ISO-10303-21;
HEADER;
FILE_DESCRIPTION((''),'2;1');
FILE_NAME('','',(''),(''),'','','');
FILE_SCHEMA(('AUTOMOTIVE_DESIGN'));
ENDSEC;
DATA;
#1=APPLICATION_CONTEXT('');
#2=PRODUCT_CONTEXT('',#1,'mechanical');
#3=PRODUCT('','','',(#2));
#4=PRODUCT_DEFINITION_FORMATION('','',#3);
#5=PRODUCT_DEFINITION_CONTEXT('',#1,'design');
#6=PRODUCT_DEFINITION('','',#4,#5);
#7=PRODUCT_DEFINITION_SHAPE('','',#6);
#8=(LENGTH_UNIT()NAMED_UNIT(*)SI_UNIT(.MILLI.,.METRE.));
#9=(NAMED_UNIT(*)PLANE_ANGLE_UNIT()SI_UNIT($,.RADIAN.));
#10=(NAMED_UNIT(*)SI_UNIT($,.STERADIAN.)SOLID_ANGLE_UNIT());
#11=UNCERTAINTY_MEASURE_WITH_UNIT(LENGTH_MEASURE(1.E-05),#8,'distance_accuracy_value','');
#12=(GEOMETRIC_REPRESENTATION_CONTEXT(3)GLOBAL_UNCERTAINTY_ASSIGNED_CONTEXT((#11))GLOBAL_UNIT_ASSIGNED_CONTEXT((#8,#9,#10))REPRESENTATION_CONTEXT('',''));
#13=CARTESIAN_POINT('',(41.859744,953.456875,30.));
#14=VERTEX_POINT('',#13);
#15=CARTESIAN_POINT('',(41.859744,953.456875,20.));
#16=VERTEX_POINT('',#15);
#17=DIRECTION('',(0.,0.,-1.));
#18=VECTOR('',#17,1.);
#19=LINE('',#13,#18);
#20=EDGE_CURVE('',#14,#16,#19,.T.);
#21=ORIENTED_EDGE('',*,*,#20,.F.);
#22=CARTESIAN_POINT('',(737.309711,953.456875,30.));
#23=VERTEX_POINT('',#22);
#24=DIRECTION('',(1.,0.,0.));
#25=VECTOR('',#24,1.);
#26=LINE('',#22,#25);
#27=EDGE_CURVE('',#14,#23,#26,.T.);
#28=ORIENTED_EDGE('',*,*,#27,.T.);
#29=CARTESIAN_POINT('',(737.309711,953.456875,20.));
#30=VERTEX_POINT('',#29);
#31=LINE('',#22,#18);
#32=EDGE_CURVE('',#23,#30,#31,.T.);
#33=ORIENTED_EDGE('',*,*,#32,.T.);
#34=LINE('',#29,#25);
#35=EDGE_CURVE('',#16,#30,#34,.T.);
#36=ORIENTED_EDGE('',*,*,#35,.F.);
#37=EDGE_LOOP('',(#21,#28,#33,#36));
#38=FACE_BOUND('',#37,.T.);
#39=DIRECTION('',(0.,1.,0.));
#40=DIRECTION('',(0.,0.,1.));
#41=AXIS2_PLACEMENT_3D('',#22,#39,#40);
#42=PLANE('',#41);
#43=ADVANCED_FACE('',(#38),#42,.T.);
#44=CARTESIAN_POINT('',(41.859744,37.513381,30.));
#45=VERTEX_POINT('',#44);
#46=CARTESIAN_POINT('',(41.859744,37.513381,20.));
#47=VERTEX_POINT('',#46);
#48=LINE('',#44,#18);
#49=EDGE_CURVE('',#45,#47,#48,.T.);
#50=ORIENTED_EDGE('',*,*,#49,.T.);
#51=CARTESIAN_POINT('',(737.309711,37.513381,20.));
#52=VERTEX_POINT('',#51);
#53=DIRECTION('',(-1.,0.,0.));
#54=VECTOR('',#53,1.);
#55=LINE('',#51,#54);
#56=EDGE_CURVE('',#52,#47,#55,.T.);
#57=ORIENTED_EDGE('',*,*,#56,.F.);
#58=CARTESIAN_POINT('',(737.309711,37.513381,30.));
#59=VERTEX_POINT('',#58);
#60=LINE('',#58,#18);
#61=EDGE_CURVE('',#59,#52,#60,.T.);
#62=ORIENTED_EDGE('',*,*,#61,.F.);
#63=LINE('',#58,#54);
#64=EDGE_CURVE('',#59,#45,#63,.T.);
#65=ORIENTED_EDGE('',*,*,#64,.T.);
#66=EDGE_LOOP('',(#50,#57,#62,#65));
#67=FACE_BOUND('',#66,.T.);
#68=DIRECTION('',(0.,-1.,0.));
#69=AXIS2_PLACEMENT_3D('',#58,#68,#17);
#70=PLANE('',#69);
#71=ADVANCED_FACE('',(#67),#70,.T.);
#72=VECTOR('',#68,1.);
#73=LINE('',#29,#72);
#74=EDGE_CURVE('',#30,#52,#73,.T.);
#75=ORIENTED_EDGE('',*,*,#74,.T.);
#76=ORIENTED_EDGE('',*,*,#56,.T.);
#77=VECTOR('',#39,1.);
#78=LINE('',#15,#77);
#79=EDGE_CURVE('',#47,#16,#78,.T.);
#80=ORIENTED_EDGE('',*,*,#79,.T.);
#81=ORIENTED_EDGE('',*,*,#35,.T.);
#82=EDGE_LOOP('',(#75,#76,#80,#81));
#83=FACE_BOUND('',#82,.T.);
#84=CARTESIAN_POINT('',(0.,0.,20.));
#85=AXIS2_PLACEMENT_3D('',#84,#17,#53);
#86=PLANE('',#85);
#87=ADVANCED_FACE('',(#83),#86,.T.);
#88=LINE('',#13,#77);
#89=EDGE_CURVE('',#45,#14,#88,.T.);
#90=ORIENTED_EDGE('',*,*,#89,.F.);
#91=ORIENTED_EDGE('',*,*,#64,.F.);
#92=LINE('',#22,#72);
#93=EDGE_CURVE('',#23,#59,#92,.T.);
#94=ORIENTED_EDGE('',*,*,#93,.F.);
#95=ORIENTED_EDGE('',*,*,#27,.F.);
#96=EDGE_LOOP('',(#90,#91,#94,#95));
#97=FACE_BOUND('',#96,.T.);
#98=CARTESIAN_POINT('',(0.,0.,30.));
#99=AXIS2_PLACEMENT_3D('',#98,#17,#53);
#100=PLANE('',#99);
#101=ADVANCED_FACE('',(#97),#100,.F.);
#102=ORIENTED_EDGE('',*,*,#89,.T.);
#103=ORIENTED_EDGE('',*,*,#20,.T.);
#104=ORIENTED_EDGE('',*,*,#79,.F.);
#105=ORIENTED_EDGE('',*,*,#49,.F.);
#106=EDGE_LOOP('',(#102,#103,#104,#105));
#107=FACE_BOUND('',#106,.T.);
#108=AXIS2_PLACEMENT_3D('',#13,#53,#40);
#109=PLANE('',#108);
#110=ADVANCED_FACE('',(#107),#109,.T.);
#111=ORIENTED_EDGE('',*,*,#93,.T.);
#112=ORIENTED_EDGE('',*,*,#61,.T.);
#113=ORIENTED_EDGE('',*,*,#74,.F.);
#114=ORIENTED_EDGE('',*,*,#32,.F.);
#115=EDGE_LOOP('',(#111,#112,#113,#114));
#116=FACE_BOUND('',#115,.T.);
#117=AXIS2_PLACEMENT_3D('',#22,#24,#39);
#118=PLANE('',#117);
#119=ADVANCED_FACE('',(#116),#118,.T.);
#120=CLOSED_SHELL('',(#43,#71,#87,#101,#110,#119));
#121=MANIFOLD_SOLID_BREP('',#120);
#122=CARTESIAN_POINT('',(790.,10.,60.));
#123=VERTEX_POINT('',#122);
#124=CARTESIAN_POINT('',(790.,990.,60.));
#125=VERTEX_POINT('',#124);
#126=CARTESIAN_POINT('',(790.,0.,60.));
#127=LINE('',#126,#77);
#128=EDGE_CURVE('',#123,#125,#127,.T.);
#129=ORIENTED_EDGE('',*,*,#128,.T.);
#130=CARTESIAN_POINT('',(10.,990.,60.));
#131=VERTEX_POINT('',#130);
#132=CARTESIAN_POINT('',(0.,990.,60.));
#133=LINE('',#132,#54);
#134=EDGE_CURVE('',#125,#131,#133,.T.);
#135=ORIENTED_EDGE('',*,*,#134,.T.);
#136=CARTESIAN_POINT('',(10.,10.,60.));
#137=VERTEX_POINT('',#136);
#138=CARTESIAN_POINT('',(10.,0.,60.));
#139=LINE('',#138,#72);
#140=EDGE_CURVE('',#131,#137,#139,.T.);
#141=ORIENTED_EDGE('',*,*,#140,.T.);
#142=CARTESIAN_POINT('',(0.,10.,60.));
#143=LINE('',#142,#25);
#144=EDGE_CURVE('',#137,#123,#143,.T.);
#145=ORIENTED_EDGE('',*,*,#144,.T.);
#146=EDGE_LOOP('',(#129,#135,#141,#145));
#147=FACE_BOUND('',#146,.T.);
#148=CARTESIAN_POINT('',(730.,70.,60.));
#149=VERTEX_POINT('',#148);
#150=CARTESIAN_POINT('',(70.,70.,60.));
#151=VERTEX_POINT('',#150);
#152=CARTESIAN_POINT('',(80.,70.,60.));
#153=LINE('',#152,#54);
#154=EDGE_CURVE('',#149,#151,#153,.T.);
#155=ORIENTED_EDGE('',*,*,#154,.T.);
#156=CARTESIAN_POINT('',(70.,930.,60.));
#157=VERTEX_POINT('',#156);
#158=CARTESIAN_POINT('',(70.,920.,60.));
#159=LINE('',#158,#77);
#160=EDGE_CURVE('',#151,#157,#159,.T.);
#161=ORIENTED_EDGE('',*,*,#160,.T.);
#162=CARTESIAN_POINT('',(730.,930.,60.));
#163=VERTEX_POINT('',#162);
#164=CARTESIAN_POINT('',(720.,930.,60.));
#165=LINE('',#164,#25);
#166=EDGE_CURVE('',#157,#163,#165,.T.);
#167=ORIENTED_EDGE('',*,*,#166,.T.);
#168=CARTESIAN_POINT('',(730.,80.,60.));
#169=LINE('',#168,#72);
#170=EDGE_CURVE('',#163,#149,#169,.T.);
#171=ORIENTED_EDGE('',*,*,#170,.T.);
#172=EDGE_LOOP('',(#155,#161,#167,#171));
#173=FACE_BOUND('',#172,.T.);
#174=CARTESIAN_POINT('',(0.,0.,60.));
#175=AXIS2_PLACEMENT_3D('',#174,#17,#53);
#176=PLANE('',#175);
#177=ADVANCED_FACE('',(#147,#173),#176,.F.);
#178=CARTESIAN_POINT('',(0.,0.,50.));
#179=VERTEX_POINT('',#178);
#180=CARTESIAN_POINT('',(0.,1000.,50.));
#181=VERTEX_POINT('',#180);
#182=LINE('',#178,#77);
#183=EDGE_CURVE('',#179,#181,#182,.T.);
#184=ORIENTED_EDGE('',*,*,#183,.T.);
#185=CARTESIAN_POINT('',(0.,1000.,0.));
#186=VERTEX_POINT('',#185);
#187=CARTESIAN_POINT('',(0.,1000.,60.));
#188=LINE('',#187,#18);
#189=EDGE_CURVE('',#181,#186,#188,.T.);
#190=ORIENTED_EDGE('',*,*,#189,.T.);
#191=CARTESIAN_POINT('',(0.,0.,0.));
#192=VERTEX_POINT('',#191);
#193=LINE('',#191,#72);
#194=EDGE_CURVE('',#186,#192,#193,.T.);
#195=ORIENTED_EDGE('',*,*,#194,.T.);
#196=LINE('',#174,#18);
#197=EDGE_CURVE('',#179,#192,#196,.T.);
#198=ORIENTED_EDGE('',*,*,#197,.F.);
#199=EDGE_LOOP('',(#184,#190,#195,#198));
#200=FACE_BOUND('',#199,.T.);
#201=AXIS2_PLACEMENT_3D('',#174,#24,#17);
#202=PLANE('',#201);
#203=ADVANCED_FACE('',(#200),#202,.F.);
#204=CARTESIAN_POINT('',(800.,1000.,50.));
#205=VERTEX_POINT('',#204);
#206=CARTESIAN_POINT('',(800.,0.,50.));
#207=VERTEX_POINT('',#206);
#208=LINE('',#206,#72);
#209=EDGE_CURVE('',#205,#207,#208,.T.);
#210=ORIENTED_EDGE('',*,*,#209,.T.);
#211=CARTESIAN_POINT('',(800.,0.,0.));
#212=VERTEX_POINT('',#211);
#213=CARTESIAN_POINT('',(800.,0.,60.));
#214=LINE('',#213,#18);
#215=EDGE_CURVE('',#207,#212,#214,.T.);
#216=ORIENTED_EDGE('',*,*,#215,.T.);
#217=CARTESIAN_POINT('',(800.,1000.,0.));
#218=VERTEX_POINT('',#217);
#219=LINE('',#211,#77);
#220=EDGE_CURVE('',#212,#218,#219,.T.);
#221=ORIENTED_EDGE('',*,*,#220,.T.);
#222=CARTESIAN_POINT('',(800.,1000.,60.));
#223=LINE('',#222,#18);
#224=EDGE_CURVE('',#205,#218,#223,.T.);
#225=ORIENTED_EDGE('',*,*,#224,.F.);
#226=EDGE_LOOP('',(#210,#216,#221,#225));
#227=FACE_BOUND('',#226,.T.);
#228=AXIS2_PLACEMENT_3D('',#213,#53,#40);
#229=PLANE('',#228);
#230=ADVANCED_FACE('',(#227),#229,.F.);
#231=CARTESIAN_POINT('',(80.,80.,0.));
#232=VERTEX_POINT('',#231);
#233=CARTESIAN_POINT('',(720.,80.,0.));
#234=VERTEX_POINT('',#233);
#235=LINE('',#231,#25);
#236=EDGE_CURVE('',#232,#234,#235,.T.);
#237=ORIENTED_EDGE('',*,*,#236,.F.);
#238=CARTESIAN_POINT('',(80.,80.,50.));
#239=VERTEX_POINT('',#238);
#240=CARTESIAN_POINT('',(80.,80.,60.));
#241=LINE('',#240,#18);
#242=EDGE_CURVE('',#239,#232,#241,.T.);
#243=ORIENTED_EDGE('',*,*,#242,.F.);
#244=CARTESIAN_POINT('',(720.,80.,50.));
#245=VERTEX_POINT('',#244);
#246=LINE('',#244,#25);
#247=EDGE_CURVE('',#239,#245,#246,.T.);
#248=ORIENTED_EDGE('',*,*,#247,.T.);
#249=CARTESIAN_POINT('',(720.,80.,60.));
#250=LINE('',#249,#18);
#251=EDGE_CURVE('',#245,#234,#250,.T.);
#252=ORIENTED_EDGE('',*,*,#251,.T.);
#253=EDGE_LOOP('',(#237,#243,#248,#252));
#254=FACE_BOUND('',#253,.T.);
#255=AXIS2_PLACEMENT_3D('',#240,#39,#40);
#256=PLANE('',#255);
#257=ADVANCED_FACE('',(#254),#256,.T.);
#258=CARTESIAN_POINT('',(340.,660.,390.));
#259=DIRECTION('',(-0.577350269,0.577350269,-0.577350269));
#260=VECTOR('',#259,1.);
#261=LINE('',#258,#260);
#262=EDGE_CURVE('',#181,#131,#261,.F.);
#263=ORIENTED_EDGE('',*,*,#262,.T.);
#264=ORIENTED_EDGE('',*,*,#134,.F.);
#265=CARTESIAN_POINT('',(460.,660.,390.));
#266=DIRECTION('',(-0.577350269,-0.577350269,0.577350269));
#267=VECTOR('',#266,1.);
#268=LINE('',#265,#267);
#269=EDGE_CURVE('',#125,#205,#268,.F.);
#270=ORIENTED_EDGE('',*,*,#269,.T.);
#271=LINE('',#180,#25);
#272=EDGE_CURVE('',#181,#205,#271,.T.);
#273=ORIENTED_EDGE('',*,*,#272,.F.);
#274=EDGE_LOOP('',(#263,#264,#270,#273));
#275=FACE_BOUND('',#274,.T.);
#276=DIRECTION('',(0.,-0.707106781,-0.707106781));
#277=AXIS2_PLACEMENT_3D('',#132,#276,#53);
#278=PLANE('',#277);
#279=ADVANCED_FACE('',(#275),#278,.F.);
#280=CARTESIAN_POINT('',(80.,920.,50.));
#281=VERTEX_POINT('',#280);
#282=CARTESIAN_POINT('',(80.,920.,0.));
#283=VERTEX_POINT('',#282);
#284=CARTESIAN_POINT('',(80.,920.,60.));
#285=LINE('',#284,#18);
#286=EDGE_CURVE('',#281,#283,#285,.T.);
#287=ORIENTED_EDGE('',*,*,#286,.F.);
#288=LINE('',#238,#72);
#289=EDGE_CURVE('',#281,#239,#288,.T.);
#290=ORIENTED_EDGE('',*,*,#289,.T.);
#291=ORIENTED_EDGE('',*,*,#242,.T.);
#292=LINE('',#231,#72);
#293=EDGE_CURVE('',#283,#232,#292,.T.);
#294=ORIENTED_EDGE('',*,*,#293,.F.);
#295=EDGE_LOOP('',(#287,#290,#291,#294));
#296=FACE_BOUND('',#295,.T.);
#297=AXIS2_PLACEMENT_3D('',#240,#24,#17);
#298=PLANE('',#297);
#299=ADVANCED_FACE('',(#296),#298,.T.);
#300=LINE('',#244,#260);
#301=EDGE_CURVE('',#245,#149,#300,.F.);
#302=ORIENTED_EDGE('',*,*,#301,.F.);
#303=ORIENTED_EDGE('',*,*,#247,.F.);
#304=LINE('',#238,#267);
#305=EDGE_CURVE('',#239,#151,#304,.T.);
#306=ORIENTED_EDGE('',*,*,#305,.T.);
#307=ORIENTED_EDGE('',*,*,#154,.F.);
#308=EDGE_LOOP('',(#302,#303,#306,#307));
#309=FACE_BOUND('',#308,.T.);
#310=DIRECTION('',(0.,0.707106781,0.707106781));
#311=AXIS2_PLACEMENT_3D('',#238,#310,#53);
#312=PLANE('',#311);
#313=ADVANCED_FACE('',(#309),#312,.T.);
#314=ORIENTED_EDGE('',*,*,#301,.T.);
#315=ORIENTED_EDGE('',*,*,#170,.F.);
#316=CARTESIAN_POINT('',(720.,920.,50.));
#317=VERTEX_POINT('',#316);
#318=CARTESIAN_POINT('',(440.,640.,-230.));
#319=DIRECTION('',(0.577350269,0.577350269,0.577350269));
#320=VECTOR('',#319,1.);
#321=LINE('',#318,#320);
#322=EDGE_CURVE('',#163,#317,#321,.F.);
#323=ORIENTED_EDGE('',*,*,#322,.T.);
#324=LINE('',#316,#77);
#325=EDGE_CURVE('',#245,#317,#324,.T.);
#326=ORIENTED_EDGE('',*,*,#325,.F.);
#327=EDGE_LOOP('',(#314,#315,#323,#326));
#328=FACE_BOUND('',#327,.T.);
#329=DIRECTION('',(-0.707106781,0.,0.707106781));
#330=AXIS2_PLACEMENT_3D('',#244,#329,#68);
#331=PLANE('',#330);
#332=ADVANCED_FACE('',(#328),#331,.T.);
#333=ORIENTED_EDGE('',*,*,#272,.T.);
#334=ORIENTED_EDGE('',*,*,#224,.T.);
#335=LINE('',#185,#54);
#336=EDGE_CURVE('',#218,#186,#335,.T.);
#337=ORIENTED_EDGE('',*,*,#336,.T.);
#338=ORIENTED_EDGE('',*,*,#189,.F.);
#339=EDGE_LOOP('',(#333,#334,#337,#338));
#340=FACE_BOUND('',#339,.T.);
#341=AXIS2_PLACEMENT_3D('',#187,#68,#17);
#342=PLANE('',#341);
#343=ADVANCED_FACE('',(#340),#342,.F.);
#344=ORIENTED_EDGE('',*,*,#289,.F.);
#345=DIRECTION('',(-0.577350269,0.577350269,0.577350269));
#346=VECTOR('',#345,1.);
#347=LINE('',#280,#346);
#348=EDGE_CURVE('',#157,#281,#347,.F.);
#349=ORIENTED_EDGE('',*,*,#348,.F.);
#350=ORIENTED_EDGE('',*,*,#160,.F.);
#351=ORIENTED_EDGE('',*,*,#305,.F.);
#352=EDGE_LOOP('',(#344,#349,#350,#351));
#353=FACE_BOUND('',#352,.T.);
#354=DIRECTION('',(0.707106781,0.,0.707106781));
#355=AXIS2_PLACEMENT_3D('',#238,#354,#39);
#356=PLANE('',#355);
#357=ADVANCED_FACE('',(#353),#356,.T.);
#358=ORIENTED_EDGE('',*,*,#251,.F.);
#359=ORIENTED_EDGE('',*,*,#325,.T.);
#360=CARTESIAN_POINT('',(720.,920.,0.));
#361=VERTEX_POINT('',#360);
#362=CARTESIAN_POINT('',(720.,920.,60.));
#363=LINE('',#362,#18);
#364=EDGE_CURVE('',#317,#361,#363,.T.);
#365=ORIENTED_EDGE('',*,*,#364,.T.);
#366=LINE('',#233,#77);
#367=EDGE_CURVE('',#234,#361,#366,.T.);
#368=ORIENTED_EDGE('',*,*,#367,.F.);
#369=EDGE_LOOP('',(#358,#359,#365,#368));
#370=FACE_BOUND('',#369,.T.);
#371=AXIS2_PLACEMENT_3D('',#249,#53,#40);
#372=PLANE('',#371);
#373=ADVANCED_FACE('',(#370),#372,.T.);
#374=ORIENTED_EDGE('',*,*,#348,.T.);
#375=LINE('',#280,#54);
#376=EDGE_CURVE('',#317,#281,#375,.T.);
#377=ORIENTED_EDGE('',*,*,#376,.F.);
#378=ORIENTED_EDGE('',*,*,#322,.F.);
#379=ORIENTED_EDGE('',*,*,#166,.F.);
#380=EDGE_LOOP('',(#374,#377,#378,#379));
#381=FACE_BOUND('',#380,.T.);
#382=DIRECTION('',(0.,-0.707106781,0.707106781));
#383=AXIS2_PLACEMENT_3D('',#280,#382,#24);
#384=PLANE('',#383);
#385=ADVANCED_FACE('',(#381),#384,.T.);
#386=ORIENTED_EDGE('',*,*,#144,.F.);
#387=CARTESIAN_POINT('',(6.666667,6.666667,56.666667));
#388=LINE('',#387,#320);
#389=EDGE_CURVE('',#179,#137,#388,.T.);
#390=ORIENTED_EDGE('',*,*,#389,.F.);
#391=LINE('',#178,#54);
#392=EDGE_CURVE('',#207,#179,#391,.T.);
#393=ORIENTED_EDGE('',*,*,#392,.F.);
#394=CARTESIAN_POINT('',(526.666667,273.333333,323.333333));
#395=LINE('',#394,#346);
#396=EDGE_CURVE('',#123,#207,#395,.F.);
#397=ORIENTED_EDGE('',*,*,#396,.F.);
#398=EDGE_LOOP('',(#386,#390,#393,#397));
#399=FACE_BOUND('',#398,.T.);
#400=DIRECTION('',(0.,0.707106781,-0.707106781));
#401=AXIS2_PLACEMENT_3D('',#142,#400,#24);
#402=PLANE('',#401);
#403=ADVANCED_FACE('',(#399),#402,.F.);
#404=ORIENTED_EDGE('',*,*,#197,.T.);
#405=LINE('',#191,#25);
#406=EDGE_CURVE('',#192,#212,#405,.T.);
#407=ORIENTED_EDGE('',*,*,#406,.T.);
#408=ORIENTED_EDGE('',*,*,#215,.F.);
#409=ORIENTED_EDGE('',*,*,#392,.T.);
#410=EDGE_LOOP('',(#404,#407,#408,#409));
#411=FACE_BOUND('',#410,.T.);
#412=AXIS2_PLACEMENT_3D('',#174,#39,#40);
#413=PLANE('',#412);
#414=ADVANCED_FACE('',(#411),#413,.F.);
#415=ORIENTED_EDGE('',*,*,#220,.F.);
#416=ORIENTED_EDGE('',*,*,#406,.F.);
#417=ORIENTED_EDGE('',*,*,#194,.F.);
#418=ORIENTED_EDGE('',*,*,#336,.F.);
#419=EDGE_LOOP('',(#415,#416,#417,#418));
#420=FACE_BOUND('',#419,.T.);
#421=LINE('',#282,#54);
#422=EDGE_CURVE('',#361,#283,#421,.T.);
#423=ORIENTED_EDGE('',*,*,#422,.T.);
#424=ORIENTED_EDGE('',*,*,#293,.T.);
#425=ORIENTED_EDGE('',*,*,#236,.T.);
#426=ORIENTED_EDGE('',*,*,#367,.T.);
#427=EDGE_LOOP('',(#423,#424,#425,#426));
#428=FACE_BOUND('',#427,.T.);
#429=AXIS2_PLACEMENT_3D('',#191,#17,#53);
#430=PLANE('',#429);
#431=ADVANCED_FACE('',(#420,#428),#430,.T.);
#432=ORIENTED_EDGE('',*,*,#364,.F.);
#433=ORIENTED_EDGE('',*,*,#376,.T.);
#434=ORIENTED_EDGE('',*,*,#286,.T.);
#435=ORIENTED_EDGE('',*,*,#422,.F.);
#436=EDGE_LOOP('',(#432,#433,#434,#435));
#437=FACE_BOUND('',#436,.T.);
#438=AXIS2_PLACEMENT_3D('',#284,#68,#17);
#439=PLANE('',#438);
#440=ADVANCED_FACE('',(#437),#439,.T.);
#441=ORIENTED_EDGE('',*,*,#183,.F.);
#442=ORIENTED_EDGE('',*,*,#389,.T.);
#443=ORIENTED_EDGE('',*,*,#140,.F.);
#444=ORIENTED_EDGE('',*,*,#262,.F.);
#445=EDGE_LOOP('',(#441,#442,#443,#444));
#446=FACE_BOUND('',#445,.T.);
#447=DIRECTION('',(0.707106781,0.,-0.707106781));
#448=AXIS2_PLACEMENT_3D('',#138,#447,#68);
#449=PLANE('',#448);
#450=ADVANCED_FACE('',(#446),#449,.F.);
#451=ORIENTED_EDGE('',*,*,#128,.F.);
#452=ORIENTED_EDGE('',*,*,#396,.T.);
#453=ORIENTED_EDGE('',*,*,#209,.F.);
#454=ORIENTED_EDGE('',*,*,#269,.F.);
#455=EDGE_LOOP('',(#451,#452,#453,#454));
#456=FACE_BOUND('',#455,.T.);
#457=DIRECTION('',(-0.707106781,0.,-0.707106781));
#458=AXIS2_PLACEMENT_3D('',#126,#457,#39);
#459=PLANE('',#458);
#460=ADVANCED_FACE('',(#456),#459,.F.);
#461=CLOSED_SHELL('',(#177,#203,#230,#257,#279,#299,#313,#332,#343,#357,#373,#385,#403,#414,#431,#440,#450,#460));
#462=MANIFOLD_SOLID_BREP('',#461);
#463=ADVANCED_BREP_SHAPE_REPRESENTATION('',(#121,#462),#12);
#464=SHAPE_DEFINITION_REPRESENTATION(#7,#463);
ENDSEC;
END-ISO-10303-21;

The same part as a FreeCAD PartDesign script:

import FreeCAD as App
import Part
import Sketcher
from FreeCAD import Vector


def edges_at(feature, points):
    """Names of the edges that pass closest to the given points."""
    edges = feature.Shape.Edges
    near = lambda p: min(range(len(edges)), key=lambda i: edges[i].distToShape(Part.Vertex(*p))[0])
    return sorted({f"Edge{near(p) + 1}" for p in points})


def add_polygon(sketch, points):
    """Adds a closed chain of lines whose ends are joined by coincident constraints."""
    first, n = sketch.GeometryCount, len(points)
    for a, b in zip(points, points[1:] + points[:1]):
        sketch.addGeometry(Part.LineSegment(App.Vector(*a, 0), App.Vector(*b, 0)), False)
    for i in range(n):
        sketch.addConstraint(Sketcher.Constraint("Coincident", first + i, 2, first + (i + 1) % n, 1))

doc = App.newDocument("Part")
body = doc.addObject("PartDesign::Body", "Body")

# Sketch on XY plane
sketch1 = body.newObject("Sketcher::SketchObject", "Sketch")
sketch1.AttachmentSupport = (doc.getObject("XY_Plane"), [""])
sketch1.MapMode = "FlatFace"
add_polygon(sketch1, [(0, 1000), (0, 0), (800, 0), (800, 1000)])  # lines 0-3
add_polygon(sketch1, [(720, 80), (80, 80), (80, 920), (720, 920)])  # lines 4-7
sketch1.addConstraint([
    Sketcher.Constraint("Vertical", 0),
    Sketcher.Constraint("Horizontal", 1),
    Sketcher.Constraint("Vertical", 2),
    Sketcher.Constraint("Horizontal", 3),
    Sketcher.Constraint("Horizontal", 4),
    Sketcher.Constraint("Vertical", 5),
    Sketcher.Constraint("Horizontal", 6),
    Sketcher.Constraint("Vertical", 7),
    Sketcher.Constraint("Coincident", 0, 2, -1, 1),
    Sketcher.Constraint("DistanceX", 1, 1, 1, 2, 800.0),
    Sketcher.Constraint("DistanceX", 4, 2, 4, 1, 640.0),
    Sketcher.Constraint("DistanceY", 0, 2, 0, 1, 1000.0),
    Sketcher.Constraint("DistanceY", 5, 1, 5, 2, 840.0),
    Sketcher.Constraint("DistanceX", -1, 1, 4, 2, 80.0),
    Sketcher.Constraint("DistanceY", -1, 1, 4, 2, 80.0),
])
pad1 = body.newObject("PartDesign::Pad", "Pad")
pad1.Profile = sketch1
pad1.Length = 60
doc.recompute()

chamfer = body.newObject("PartDesign::Chamfer", "Chamfer")
chamfer.Base = (pad1, edges_at(pad1, [
    (800, 500, 60),
    (400, 80, 60),
    (400, 1000, 60),
    (720, 500, 60),
    (400, 920, 60),
    (80, 500, 60),
    (0, 500, 60),
    (400, 0, 60),
]))
chamfer.Size = 10
body2 = doc.addObject("PartDesign::Body", "Body001")

# Sketch on XY plane
sketch2 = body2.newObject("Sketcher::SketchObject", "Sketch001")
sketch2.AttachmentSupport = (doc.getObject("XY_Plane001"), [""])
sketch2.MapMode = "FlatFace"
sketch2.AttachmentOffset = App.Placement(Vector(0, 0, 20), App.Rotation())
add_polygon(sketch2, [(737, 953), (737, 38), (42, 38), (42, 953)])  # lines 0-3
sketch2.addConstraint([
    Sketcher.Constraint("Vertical", 0),
    Sketcher.Constraint("Horizontal", 1),
    Sketcher.Constraint("Vertical", 2),
    Sketcher.Constraint("Horizontal", 3),
    Sketcher.Constraint("DistanceX", 1, 2, 1, 1, 695.449968),
    Sketcher.Constraint("DistanceY", 0, 2, 0, 1, 915.943494),
    Sketcher.Constraint("DistanceX", -1, 1, 0, 2, 737.309711),
    Sketcher.Constraint("DistanceY", -1, 1, 0, 2, 37.513381),
])
pad2 = body2.newObject("PartDesign::Pad", "Pad001")
pad2.Profile = sketch2
pad2.Length = 10

doc.recompute()
